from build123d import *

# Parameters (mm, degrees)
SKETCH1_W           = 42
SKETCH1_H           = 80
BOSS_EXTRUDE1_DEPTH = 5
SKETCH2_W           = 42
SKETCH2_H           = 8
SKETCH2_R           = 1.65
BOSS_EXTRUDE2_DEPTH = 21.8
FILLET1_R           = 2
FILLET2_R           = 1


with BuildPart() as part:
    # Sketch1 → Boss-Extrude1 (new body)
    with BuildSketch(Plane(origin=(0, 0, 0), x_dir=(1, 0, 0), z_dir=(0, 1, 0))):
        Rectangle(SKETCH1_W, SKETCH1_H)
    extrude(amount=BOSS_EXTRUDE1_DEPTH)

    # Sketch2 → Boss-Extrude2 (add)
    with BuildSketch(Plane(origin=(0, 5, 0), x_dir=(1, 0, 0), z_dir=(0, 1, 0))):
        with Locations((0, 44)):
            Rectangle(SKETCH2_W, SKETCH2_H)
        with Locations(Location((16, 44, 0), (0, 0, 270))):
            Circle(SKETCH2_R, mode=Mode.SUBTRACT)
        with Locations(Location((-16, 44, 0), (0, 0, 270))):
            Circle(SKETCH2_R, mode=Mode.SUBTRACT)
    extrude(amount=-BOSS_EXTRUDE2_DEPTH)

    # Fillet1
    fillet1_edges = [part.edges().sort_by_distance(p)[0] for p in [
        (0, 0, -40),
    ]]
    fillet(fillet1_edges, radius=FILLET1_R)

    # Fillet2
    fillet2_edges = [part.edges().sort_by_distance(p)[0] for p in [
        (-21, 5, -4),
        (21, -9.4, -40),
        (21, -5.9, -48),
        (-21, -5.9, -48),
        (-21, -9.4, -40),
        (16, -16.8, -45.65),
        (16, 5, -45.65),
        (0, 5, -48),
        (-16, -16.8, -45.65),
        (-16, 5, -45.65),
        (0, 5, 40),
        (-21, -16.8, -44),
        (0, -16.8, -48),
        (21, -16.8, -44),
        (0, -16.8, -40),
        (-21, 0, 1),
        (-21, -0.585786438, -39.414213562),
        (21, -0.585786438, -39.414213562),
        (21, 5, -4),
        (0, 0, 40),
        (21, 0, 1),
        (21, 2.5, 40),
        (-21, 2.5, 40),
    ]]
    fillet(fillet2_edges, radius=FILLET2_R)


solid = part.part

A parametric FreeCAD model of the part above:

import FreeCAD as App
import Part
import Sketcher

V = App.Vector
Q = App.Units.Quantity


def edges_at(feature, points):
    """Names of the edges that pass closest to the given points."""
    edges = feature.Shape.Edges
    near = lambda p: min(range(len(edges)), key=lambda i: edges[i].distToShape(Part.Vertex(*p))[0])
    return sorted({f"Edge{near(p) + 1}" for p in points})


def add_polygon(sketch, points):
    """Adds a closed chain of lines whose ends are joined by coincident constraints."""
    first, n = sketch.GeometryCount, len(points)
    for a, b in zip(points, points[1:] + points[:1]):
        sketch.addGeometry(Part.LineSegment(App.Vector(*a, 0), App.Vector(*b, 0)), False)
    for i in range(n):
        sketch.addConstraint(Sketcher.Constraint("Coincident", first + i, 2, first + (i + 1) % n, 1))

doc = App.newDocument("Part")
body = doc.addObject("PartDesign::Body", "Body")

sketch1 = doc.addObject("Sketcher::SketchObject", "Sketch")
body.addObject(sketch1)
sketch1.AttachmentSupport = (doc.XZ_Plane, [""])
sketch1.MapMode = "FlatFace"
add_polygon(sketch1, [(-21, -40), (-21, 40), (21, 40), (21, -40)])
sketch1.addConstraint([
    Sketcher.Constraint("Vertical", 0),
    Sketcher.Constraint("Horizontal", 1),
    Sketcher.Constraint("Vertical", 2),
    Sketcher.Constraint("Horizontal", 3),
    Sketcher.Constraint("Symmetric", 0, 2, 2, 2, -1, 1),
    Sketcher.Constraint("DistanceX", 1, 1, 1, 2, Q("42 mm")),
    Sketcher.Constraint("DistanceY", 0, 1, 0, 2, Q("80 mm")),
])
pad1 = doc.addObject("PartDesign::Pad", "Pad")
body.addObject(pad1)
pad1.Profile = sketch1
pad1.Length = 5
pad1.Reversed = True

sketch2 = doc.addObject("Sketcher::SketchObject", "Sketch001")
body.addObject(sketch2)
sketch2.AttachmentSupport = (doc.XZ_Plane, [""])
sketch2.MapMode = "FlatFace"
sketch2.AttachmentOffset = App.Placement(V(0, 0, -5), App.Rotation())
add_polygon(sketch2, [(-21, -48), (-21, -40), (21, -40), (21, -48)])
sketch2.addGeometry(Part.Circle(V(-16, -44, 0), V(0, 0, 1), 1.65), False)
sketch2.addGeometry(Part.Circle(V(16, -44, 0), V(0, 0, 1), 1.65), False)
sketch2.addConstraint([
    Sketcher.Constraint("Vertical", 0),
    Sketcher.Constraint("Horizontal", 1),
    Sketcher.Constraint("Vertical", 2),
    Sketcher.Constraint("Horizontal", 3),
    Sketcher.Constraint("Equal", 4, 5),
    Sketcher.Constraint("Symmetric", 4, 3, 5, 3, -2),
    Sketcher.Constraint("Diameter", 4, Q("3.3 mm")),
    Sketcher.Constraint("DistanceX", 1, 1, 1, 2, Q("42 mm")),
    Sketcher.Constraint("DistanceY", 0, 1, 0, 2, Q("8 mm")),
    Sketcher.Constraint("DistanceX", 4, 3, -1, 1, Q("16 mm")),
    Sketcher.Constraint("DistanceY", 4, 3, -1, 1, Q("44 mm")),
    Sketcher.Constraint("DistanceX", 0, 2, -1, 1, Q("21 mm")),
    Sketcher.Constraint("DistanceY", 0, 2, -1, 1, Q("40 mm")),
])
pad2 = doc.addObject("PartDesign::Pad", "Pad001")
body.addObject(pad2)
pad2.Profile = sketch2
pad2.Length = 21.8
doc.recompute()

fillet = doc.addObject("PartDesign::Fillet", "Fillet")
body.addObject(fillet)
fillet.Base = (pad2, edges_at(pad2, [(0, 0, -40)]))
fillet.Radius = 2
doc.recompute()

fillet2 = doc.addObject("PartDesign::Fillet", "Fillet001")
body.addObject(fillet2)
fillet2.Base = (fillet, ["Edge1"])
fillet2.UseAllEdges = True
fillet2.Radius = 1

doc.recompute()
